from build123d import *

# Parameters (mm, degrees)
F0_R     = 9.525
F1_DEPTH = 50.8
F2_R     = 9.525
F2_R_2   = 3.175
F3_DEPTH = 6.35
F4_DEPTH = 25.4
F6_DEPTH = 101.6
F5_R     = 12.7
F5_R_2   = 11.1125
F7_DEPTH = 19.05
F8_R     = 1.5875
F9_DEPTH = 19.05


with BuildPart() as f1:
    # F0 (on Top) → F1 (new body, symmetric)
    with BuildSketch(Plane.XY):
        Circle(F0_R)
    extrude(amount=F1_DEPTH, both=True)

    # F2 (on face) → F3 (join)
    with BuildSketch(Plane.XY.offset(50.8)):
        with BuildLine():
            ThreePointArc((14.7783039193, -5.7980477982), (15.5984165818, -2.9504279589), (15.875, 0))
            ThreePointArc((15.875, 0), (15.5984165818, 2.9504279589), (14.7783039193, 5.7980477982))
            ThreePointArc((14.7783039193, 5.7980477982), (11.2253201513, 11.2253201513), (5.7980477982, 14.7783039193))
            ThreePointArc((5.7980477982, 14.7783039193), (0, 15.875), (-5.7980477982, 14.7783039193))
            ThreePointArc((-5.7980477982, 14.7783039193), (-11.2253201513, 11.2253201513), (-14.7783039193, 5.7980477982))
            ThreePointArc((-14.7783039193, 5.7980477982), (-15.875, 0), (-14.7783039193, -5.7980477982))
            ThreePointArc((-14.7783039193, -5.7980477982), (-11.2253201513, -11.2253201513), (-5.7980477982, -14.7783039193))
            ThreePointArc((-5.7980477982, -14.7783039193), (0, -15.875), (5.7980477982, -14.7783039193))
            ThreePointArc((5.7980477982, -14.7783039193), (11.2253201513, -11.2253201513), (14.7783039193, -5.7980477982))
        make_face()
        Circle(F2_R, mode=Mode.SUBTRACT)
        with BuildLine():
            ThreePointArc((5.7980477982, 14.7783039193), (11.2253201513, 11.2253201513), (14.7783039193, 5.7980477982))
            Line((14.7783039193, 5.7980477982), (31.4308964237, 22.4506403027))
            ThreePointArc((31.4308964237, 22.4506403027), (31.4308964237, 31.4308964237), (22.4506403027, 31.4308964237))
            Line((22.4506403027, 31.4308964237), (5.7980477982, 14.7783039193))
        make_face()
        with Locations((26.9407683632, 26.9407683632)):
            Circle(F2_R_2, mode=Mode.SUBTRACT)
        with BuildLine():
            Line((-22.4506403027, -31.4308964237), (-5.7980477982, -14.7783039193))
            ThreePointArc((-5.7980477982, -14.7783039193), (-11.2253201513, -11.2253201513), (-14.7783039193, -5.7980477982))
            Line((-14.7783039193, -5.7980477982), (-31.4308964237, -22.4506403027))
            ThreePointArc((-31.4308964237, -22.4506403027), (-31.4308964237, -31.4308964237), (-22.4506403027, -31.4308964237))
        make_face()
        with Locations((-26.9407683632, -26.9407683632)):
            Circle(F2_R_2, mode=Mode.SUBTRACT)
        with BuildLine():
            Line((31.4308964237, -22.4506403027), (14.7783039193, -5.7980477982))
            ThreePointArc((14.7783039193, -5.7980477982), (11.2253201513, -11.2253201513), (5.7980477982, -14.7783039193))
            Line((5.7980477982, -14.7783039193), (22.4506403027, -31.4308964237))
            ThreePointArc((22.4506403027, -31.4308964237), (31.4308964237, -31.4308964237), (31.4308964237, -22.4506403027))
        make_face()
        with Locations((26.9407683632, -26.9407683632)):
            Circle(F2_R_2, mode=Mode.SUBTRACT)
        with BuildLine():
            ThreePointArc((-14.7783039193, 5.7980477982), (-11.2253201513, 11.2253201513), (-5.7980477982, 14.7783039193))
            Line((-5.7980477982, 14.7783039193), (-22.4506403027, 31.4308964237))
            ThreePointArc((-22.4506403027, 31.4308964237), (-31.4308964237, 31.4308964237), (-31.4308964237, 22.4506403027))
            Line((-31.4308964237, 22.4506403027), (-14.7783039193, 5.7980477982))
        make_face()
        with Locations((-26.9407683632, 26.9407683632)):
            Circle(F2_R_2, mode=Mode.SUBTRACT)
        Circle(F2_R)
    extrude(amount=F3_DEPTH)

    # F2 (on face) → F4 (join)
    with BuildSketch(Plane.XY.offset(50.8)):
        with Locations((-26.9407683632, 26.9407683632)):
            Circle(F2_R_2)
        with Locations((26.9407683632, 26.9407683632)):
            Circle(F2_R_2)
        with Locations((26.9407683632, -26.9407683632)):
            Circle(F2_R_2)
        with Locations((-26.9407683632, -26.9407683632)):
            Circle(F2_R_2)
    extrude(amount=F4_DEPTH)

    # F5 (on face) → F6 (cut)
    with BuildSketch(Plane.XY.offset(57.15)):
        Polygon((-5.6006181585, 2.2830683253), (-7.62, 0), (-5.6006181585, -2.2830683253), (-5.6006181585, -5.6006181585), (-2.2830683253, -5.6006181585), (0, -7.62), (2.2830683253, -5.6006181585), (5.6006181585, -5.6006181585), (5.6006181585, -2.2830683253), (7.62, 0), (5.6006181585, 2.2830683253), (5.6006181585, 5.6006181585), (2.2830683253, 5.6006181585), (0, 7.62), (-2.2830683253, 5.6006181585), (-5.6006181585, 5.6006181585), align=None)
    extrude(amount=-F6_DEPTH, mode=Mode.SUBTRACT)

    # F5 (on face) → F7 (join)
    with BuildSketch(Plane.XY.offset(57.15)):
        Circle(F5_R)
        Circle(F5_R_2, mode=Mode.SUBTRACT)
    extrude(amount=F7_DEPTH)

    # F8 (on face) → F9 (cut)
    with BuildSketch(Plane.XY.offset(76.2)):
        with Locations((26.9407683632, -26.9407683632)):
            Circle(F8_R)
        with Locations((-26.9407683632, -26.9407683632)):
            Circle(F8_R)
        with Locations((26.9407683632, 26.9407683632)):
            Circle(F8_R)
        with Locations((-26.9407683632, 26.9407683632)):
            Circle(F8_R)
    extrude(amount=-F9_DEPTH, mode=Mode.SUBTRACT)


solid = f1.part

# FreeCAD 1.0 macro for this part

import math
import FreeCAD as App
import Part
import Sketcher
from FreeCAD import Vector
Q = App.Units.Quantity

doc = App.newDocument("Part")
body = doc.addObject("PartDesign::Body", "Body")

sketch1 = body.newObject("Sketcher::SketchObject", "Sketch")
sketch1.AttachmentSupport = (doc.getObject("XY_Plane"), [""])
sketch1.MapMode = "FlatFace"
sketch1.addGeometry(Part.Circle(Vector(0, 0, 0), Vector(0, 0, 1), 9.525), False)
sketch1.addConstraint([
    Sketcher.Constraint("Coincident", 0, 3, -1, 1),
    Sketcher.Constraint("Diameter", 0, Q("0.75 in")),
])
pad1 = body.newObject("PartDesign::Pad", "Pad")
pad1.Profile = sketch1
pad1.Length = Q("4 in")
pad1.Midplane = True

sketch2 = body.newObject("Sketcher::SketchObject", "Sketch001")
sketch2.AttachmentSupport = (doc.getObject("XY_Plane"), [""])
sketch2.MapMode = "FlatFace"
sketch2.AttachmentOffset = App.Placement(Vector(0, 0, 2 * 25.4), App.Rotation())
sketch2.addGeometry([
    Part.ArcOfCircle(Part.Circle(Vector(0, 0, 0), Vector(0, 0, 1), 15.875), math.radians(-21.421822), math.radians(0)),
    Part.ArcOfCircle(Part.Circle(Vector(0, 0, 0), Vector(0, 0, 1), 15.875), math.radians(0), math.radians(21.421822)),
    Part.LineSegment(Vector(14.778304, 5.798048, 0), Vector(31.430896, 22.45064, 0)),
    Part.ArcOfCircle(Part.Circle(Vector(26.940768, 26.940768, 0), Vector(0, 0, 1), 6.35), math.radians(-45), math.radians(135)),
    Part.LineSegment(Vector(22.45064, 31.430896, 0), Vector(5.798048, 14.778304, 0)),
    Part.ArcOfCircle(Part.Circle(Vector(0, 0, 0), Vector(0, 0, 1), 15.875), math.radians(68.578178), math.radians(111.421822)),
    Part.LineSegment(Vector(-5.798048, 14.778304, 0), Vector(-22.45064, 31.430896, 0)),
    Part.ArcOfCircle(Part.Circle(Vector(-26.940768, 26.940768, 0), Vector(0, 0, 1), 6.35), math.radians(45), math.radians(225)),
    Part.LineSegment(Vector(-31.430896, 22.45064, 0), Vector(-14.778304, 5.798048, 0)),
    Part.ArcOfCircle(Part.Circle(Vector(0, 0, 0), Vector(0, 0, 1), 15.875), math.radians(158.578178), math.radians(201.421822)),
    Part.LineSegment(Vector(-14.778304, -5.798048, 0), Vector(-31.430896, -22.45064, 0)),
    Part.ArcOfCircle(Part.Circle(Vector(-26.940768, -26.940768, 0), Vector(0, 0, 1), 6.35), math.radians(135), math.radians(315)),
    Part.LineSegment(Vector(-22.45064, -31.430896, 0), Vector(-5.798048, -14.778304, 0)),
    Part.ArcOfCircle(Part.Circle(Vector(0, 0, 0), Vector(0, 0, 1), 15.875), math.radians(-111.421822), math.radians(-68.578178)),
    Part.LineSegment(Vector(5.798048, -14.778304, 0), Vector(22.45064, -31.430896, 0)),
    Part.ArcOfCircle(Part.Circle(Vector(26.940768, -26.940768, 0), Vector(0, 0, 1), 6.35), math.radians(-135), math.radians(45)),
    Part.LineSegment(Vector(31.430896, -22.45064, 0), Vector(14.778304, -5.798048, 0)),
    Part.Circle(Vector(-26.940768, -26.940768, 0), Vector(0, 0, 1), 3.175),
    Part.Circle(Vector(26.940768, -26.940768, 0), Vector(0, 0, 1), 3.175),
    Part.Circle(Vector(-26.940768, 26.940768, 0), Vector(0, 0, 1), 3.175),
    Part.Circle(Vector(26.940768, 26.940768, 0), Vector(0, 0, 1), 3.175),
], False)
sketch2.addConstraint([
    Sketcher.Constraint("Tangent", 0, 2, 1, 1),
    Sketcher.Constraint("Coincident", 1, 2, 2, 1),
    Sketcher.Constraint("Tangent", 2, 2, 3, 1),
    Sketcher.Constraint("Tangent", 3, 2, 4, 1),
    Sketcher.Constraint("Coincident", 4, 2, 5, 1),
    Sketcher.Constraint("Coincident", 5, 2, 6, 1),
    Sketcher.Constraint("Tangent", 6, 2, 7, 1),
    Sketcher.Constraint("Tangent", 7, 2, 8, 1),
    Sketcher.Constraint("Coincident", 8, 2, 9, 1),
    Sketcher.Constraint("Coincident", 9, 2, 10, 1),
    Sketcher.Constraint("Tangent", 10, 2, 11, 1),
    Sketcher.Constraint("Tangent", 11, 2, 12, 1),
    Sketcher.Constraint("Coincident", 12, 2, 13, 1),
    Sketcher.Constraint("Coincident", 13, 2, 14, 1),
    Sketcher.Constraint("Tangent", 14, 2, 15, 1),
    Sketcher.Constraint("Tangent", 15, 2, 16, 1),
    Sketcher.Constraint("Coincident", 16, 2, 0, 1),
    Sketcher.Constraint("Coincident", 0, 3, -1, 1),
    Sketcher.Constraint("Coincident", 5, 3, -1, 1),
    Sketcher.Constraint("Coincident", 9, 3, -1, 1),
    Sketcher.Constraint("Coincident", 13, 3, -1, 1),
    Sketcher.Constraint("Coincident", 17, 3, 11, 3),
    Sketcher.Constraint("Coincident", 18, 3, 15, 3),
    Sketcher.Constraint("Coincident", 19, 3, 7, 3),
    Sketcher.Constraint("Coincident", 20, 3, 3, 3),
    Sketcher.Constraint("Equal", 0, 1),
    Sketcher.Constraint("Equal", 1, 5),
    Sketcher.Constraint("Equal", 3, 7),
    Sketcher.Constraint("Equal", 5, 9),
    Sketcher.Constraint("Equal", 7, 11),
    Sketcher.Constraint("Equal", 9, 13),
    Sketcher.Constraint("Equal", 11, 15),
    Sketcher.Constraint("Equal", 17, 18),
    Sketcher.Constraint("Equal", 18, 19),
    Sketcher.Constraint("Equal", 19, 20),
    Sketcher.Constraint("Symmetric", 3, 3, 11, 3, -1, 1),
    Sketcher.Constraint("Symmetric", 7, 3, 15, 3, -1, 1),
    Sketcher.Constraint("Symmetric", 3, 3, 7, 3, -2),
    Sketcher.Constraint("PointOnObject", 0, 2, -1),
    Sketcher.Constraint("Parallel", 2, 4),
    Sketcher.Constraint("Perpendicular", 4, 6),
    Sketcher.Constraint("Parallel", 6, 8),
    Sketcher.Constraint("Perpendicular", 8, 10),
    Sketcher.Constraint("Parallel", 10, 12),
    Sketcher.Constraint("Perpendicular", 12, 14),
    Sketcher.Constraint("Parallel", 14, 16),
    Sketcher.Constraint("Horizontal", 4, 2, 5, 2),
    Sketcher.Constraint("Equal", 2, 4),
    Sketcher.Constraint("Diameter", 17, Q("0.25 in")),
    Sketcher.Constraint("Radius", 3, Q("0.25 in")),
    Sketcher.Constraint("Radius", 0, Q("0.625 in")),
    Sketcher.Constraint("DistanceX", -1, 1, 3, 3, Q("26.940768 mm")),
])
pad2 = body.newObject("PartDesign::Pad", "Pad001")
pad2.Profile = sketch2
pad2.Length = Q("0.25 in")

sketch3 = body.newObject("Sketcher::SketchObject", "Sketch002")
sketch3.AttachmentSupport = (doc.getObject("XY_Plane"), [""])
sketch3.MapMode = "FlatFace"
sketch3.AttachmentOffset = App.Placement(Vector(0, 0, 2 * 25.4), App.Rotation())
sketch3.addGeometry([
    Part.Circle(Vector(-26.940768, 26.940768, 0), Vector(0, 0, 1), 3.175),
    Part.Circle(Vector(26.940768, 26.940768, 0), Vector(0, 0, 1), 3.175),
    Part.Circle(Vector(26.940768, -26.940768, 0), Vector(0, 0, 1), 3.175),
    Part.Circle(Vector(-26.940768, -26.940768, 0), Vector(0, 0, 1), 3.175),
], False)
sketch3.addConstraint([
    Sketcher.Constraint("Equal", 0, 1),
    Sketcher.Constraint("Equal", 1, 2),
    Sketcher.Constraint("Equal", 2, 3),
    Sketcher.Constraint("Symmetric", 0, 3, 2, 3, -1, 1),
    Sketcher.Constraint("Symmetric", 1, 3, 3, 3, -1, 1),
    Sketcher.Constraint("Symmetric", 0, 3, 1, 3, -2),
    Sketcher.Constraint("Diameter", 0, Q("0.25 in")),
    Sketcher.Constraint("DistanceX", 0, 3, -1, 1, Q("26.940768 mm")),
    Sketcher.Constraint("DistanceY", -1, 1, 0, 3, Q("26.940768 mm")),
])
pad3 = body.newObject("PartDesign::Pad", "Pad002")
pad3.Profile = sketch3
pad3.Length = Q("1 in")

sketch4 = body.newObject("Sketcher::SketchObject", "Sketch003")
sketch4.AttachmentSupport = (doc.getObject("XY_Plane"), [""])
sketch4.MapMode = "FlatFace"
sketch4.AttachmentOffset = App.Placement(Vector(0, 0, 2.25 * 25.4), App.Rotation())
sketch4.addGeometry([
    Part.LineSegment(Vector(-5.600618, 2.283068, 0), Vector(-7.62, 0, 0)),
    Part.LineSegment(Vector(-7.62, 0, 0), Vector(-5.600618, -2.283068, 0)),
    Part.LineSegment(Vector(-5.600618, -2.283068, 0), Vector(-5.600618, -5.600618, 0)),
    Part.LineSegment(Vector(-5.600618, -5.600618, 0), Vector(-2.283068, -5.600618, 0)),
    Part.LineSegment(Vector(-2.283068, -5.600618, 0), Vector(0, -7.62, 0)),
    Part.LineSegment(Vector(0, -7.62, 0), Vector(2.283068, -5.600618, 0)),
    Part.LineSegment(Vector(2.283068, -5.600618, 0), Vector(5.600618, -5.600618, 0)),
    Part.LineSegment(Vector(5.600618, -5.600618, 0), Vector(5.600618, -2.283068, 0)),
    Part.LineSegment(Vector(5.600618, -2.283068, 0), Vector(7.62, 0, 0)),
    Part.LineSegment(Vector(7.62, 0, 0), Vector(5.600618, 2.283068, 0)),
    Part.LineSegment(Vector(5.600618, 2.283068, 0), Vector(5.600618, 5.600618, 0)),
    Part.LineSegment(Vector(5.600618, 5.600618, 0), Vector(2.283068, 5.600618, 0)),
    Part.LineSegment(Vector(2.283068, 5.600618, 0), Vector(0, 7.62, 0)),
    Part.LineSegment(Vector(0, 7.62, 0), Vector(-2.283068, 5.600618, 0)),
    Part.LineSegment(Vector(-2.283068, 5.600618, 0), Vector(-5.600618, 5.600618, 0)),
    Part.LineSegment(Vector(-5.600618, 5.600618, 0), Vector(-5.600618, 2.283068, 0)),
], False)
sketch4.addConstraint([
    Sketcher.Constraint("Coincident", 0, 2, 1, 1),
    Sketcher.Constraint("Coincident", 1, 2, 2, 1),
    Sketcher.Constraint("Coincident", 2, 2, 3, 1),
    Sketcher.Constraint("Coincident", 3, 2, 4, 1),
    Sketcher.Constraint("Coincident", 4, 2, 5, 1),
    Sketcher.Constraint("Coincident", 5, 2, 6, 1),
    Sketcher.Constraint("Coincident", 6, 2, 7, 1),
    Sketcher.Constraint("Coincident", 7, 2, 8, 1),
    Sketcher.Constraint("Coincident", 8, 2, 9, 1),
    Sketcher.Constraint("Coincident", 9, 2, 10, 1),
    Sketcher.Constraint("Coincident", 10, 2, 11, 1),
    Sketcher.Constraint("Coincident", 11, 2, 12, 1),
    Sketcher.Constraint("Coincident", 12, 2, 13, 1),
    Sketcher.Constraint("Coincident", 13, 2, 14, 1),
    Sketcher.Constraint("Coincident", 14, 2, 15, 1),
    Sketcher.Constraint("Coincident", 15, 2, 0, 1),
    Sketcher.Constraint("Vertical", 2),
    Sketcher.Constraint("Horizontal", 3),
    Sketcher.Constraint("Horizontal", 6),
    Sketcher.Constraint("Vertical", 7),
    Sketcher.Constraint("Vertical", 10),
    Sketcher.Constraint("Horizontal", 11),
    Sketcher.Constraint("Horizontal", 14),
    Sketcher.Constraint("Vertical", 15),
    Sketcher.Constraint("Symmetric", 0, 2, 8, 2, -1, 1),
    Sketcher.Constraint("Symmetric", 1, 2, 9, 2, -1, 1),
    Sketcher.Constraint("Symmetric", 3, 2, 11, 2, -1, 1),
    Sketcher.Constraint("Symmetric", 4, 2, 12, 2, -1, 1),
    Sketcher.Constraint("Symmetric", 5, 2, 13, 2, -1, 1),
    Sketcher.Constraint("Symmetric", 7, 2, 15, 2, -1, 1),
    Sketcher.Constraint("Symmetric", 3, 2, 5, 2, -2),
    Sketcher.Constraint("Symmetric", 1, 2, 7, 2, -2),
    Sketcher.Constraint("PointOnObject", 0, 2, -1),
    Sketcher.Constraint("PointOnObject", 4, 2, -2),
    Sketcher.Constraint("Perpendicular", 0, 4),
    Sketcher.Constraint("Equal", 14, 2),
    Sketcher.Constraint("Equal", 1, 4),
    Sketcher.Constraint("DistanceX", 0, 2, -1, 1, Q("0.3 in")),
    Sketcher.Constraint("Distance", 0, Q("0.12 in")),
    Sketcher.Constraint("DistanceX", 3, 1, 3, 2, Q("3.31755 mm")),
])
pocket1 = body.newObject("PartDesign::Pocket", "Pocket")
pocket1.Profile = sketch4
pocket1.Length = Q("4 in")

sketch5 = body.newObject("Sketcher::SketchObject", "Sketch004")
sketch5.AttachmentSupport = (doc.getObject("XY_Plane"), [""])
sketch5.MapMode = "FlatFace"
sketch5.AttachmentOffset = App.Placement(Vector(0, 0, 2.25 * 25.4), App.Rotation())
sketch5.addGeometry([
    Part.Circle(Vector(0, 0, 0), Vector(0, 0, 1), 12.7),
    Part.Circle(Vector(0, 0, 0), Vector(0, 0, 1), 11.1125),
], False)
sketch5.addConstraint([
    Sketcher.Constraint("Coincident", 0, 3, -1, 1),
    Sketcher.Constraint("Coincident", 1, 3, -1, 1),
    Sketcher.Constraint("Diameter", 0, Q("1 in")),
    Sketcher.Constraint("Diameter", 1, Q("0.875 in")),
])
pad4 = body.newObject("PartDesign::Pad", "Pad003")
pad4.Profile = sketch5
pad4.Length = Q("0.75 in")

sketch6 = body.newObject("Sketcher::SketchObject", "Sketch005")
sketch6.AttachmentSupport = (doc.getObject("XY_Plane"), [""])
sketch6.MapMode = "FlatFace"
sketch6.AttachmentOffset = App.Placement(Vector(0, 0, 3 * 25.4), App.Rotation())
sketch6.addGeometry([
    Part.Circle(Vector(26.940768, -26.940768, 0), Vector(0, 0, 1), 1.5875),
    Part.Circle(Vector(-26.940768, -26.940768, 0), Vector(0, 0, 1), 1.5875),
    Part.Circle(Vector(26.940768, 26.940768, 0), Vector(0, 0, 1), 1.5875),
    Part.Circle(Vector(-26.940768, 26.940768, 0), Vector(0, 0, 1), 1.5875),
], False)
sketch6.addConstraint([
    Sketcher.Constraint("Equal", 0, 1),
    Sketcher.Constraint("Equal", 1, 2),
    Sketcher.Constraint("Equal", 2, 3),
    Sketcher.Constraint("Symmetric", 1, 3, 2, 3, -1, 1),
    Sketcher.Constraint("Symmetric", 0, 3, 3, 3, -1, 1),
    Sketcher.Constraint("Symmetric", 0, 3, 1, 3, -2),
    Sketcher.Constraint("Diameter", 0, Q("0.125 in")),
    Sketcher.Constraint("DistanceX", -1, 1, 0, 3, Q("26.940768 mm")),
    Sketcher.Constraint("DistanceY", 0, 3, -1, 1, Q("26.940768 mm")),
])
pocket2 = body.newObject("PartDesign::Pocket", "Pocket001")
pocket2.Profile = sketch6
pocket2.Length = Q("0.75 in")

doc.recompute()
